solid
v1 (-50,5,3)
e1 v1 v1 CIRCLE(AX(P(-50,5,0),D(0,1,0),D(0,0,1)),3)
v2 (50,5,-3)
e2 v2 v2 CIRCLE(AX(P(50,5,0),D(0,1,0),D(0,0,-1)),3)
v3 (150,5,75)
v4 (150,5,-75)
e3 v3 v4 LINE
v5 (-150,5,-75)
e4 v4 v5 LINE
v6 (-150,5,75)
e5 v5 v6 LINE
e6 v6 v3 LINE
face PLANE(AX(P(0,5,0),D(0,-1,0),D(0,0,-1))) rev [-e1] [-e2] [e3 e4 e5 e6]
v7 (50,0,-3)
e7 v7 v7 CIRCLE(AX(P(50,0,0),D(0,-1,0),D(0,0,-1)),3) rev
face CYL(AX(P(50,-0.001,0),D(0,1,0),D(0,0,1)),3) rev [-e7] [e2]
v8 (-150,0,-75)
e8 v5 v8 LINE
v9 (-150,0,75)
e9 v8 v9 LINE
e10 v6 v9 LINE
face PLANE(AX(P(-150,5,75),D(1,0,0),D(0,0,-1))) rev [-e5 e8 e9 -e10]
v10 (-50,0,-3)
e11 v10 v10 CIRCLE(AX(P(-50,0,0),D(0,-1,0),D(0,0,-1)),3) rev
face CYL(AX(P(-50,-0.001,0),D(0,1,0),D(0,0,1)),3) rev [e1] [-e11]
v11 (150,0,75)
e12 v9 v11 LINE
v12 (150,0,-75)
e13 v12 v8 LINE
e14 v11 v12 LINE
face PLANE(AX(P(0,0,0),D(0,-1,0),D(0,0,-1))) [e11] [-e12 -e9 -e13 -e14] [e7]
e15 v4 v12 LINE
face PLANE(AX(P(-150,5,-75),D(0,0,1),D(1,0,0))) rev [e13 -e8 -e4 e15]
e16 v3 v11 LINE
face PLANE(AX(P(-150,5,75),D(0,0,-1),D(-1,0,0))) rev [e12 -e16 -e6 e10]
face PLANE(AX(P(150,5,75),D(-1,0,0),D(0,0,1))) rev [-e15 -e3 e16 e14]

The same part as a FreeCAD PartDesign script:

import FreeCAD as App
import Part
import Sketcher
from FreeCAD import Vector
Q = App.Units.Quantity

doc = App.newDocument("Part")
body = doc.addObject("PartDesign::Body", "Body")

# Sketch on XZ plane
sketch1 = body.newObject("Sketcher::SketchObject", "Sketch")
sketch1.AttachmentSupport = (doc.getObject("XZ_Plane"), [""])
sketch1.MapMode = "FlatFace"
sketch1.addGeometry(Part.LineSegment(Vector(-150, -75, 0), Vector(-150, 75, 0)), False)
sketch1.addGeometry(Part.LineSegment(Vector(-150, 75, 0), Vector(150, 75, 0)), False)
sketch1.addGeometry(Part.LineSegment(Vector(150, 75, 0), Vector(150, -75, 0)), False)
sketch1.addGeometry(Part.LineSegment(Vector(150, -75, 0), Vector(-150, -75, 0)), False)
sketch1.addConstraint(Sketcher.Constraint("Coincident", 0, 2, 1, 1))
sketch1.addConstraint(Sketcher.Constraint("Coincident", 1, 2, 2, 1))
sketch1.addConstraint(Sketcher.Constraint("Coincident", 2, 2, 3, 1))
sketch1.addConstraint(Sketcher.Constraint("Coincident", 3, 2, 0, 1))
sketch1.addConstraint(Sketcher.Constraint("Vertical", 0))
sketch1.addConstraint(Sketcher.Constraint("Horizontal", 1))
sketch1.addConstraint(Sketcher.Constraint("Vertical", 2))
sketch1.addConstraint(Sketcher.Constraint("Horizontal", 3))
sketch1.addConstraint(Sketcher.Constraint("Symmetric", 0, 2, 2, 2, -1, 1))
sketch1.addConstraint(Sketcher.Constraint("DistanceX", 1, 1, 1, 2, Q("300 mm")))
sketch1.addConstraint(Sketcher.Constraint("DistanceY", 0, 1, 0, 2, Q("150 mm")))
pad1 = body.newObject("PartDesign::Pad", "Pad")
pad1.Profile = sketch1
pad1.Length = 5
pad1.Reversed = True

# Sketch on XZ plane
sketch2 = body.newObject("Sketcher::SketchObject", "Sketch001")
sketch2.AttachmentSupport = (doc.getObject("XZ_Plane"), [""])
sketch2.MapMode = "FlatFace"
sketch2.AttachmentOffset = App.Placement(Vector(0, 0, -5), App.Rotation())
sketch2.addGeometry(Part.Circle(Vector(-50, 0, 0), Vector(0, 0, 1), 3), False)
sketch2.addConstraint(Sketcher.Constraint("PointOnObject", 0, 3, -1))
sketch2.addConstraint(Sketcher.Constraint("Diameter", 0, Q("6 mm")))
sketch2.addConstraint(Sketcher.Constraint("DistanceX", 0, 3, -1, 1, Q("50 mm")))
pocket1 = body.newObject("PartDesign::Pocket", "Pocket")
pocket1.Profile = sketch2
pocket1.Type = "UpToFirst"
pocket1.Reversed = True

# Sketch on XZ plane
sketch3 = body.newObject("Sketcher::SketchObject", "Sketch002")
sketch3.AttachmentSupport = (doc.getObject("XZ_Plane"), [""])
sketch3.MapMode = "FlatFace"
sketch3.AttachmentOffset = App.Placement(Vector(0, 0, -5), App.Rotation())
sketch3.addGeometry(Part.Circle(Vector(50, 0, 0), Vector(0, 0, 1), 3), False)
sketch3.addConstraint(Sketcher.Constraint("PointOnObject", 0, 3, -1))
sketch3.addConstraint(Sketcher.Constraint("Diameter", 0, Q("6 mm")))
sketch3.addConstraint(Sketcher.Constraint("DistanceX", -1, 1, 0, 3, Q("50 mm")))
pocket2 = body.newObject("PartDesign::Pocket", "Pocket001")
pocket2.Profile = sketch3
pocket2.Type = "UpToFirst"
pocket2.Reversed = True

doc.recompute()
